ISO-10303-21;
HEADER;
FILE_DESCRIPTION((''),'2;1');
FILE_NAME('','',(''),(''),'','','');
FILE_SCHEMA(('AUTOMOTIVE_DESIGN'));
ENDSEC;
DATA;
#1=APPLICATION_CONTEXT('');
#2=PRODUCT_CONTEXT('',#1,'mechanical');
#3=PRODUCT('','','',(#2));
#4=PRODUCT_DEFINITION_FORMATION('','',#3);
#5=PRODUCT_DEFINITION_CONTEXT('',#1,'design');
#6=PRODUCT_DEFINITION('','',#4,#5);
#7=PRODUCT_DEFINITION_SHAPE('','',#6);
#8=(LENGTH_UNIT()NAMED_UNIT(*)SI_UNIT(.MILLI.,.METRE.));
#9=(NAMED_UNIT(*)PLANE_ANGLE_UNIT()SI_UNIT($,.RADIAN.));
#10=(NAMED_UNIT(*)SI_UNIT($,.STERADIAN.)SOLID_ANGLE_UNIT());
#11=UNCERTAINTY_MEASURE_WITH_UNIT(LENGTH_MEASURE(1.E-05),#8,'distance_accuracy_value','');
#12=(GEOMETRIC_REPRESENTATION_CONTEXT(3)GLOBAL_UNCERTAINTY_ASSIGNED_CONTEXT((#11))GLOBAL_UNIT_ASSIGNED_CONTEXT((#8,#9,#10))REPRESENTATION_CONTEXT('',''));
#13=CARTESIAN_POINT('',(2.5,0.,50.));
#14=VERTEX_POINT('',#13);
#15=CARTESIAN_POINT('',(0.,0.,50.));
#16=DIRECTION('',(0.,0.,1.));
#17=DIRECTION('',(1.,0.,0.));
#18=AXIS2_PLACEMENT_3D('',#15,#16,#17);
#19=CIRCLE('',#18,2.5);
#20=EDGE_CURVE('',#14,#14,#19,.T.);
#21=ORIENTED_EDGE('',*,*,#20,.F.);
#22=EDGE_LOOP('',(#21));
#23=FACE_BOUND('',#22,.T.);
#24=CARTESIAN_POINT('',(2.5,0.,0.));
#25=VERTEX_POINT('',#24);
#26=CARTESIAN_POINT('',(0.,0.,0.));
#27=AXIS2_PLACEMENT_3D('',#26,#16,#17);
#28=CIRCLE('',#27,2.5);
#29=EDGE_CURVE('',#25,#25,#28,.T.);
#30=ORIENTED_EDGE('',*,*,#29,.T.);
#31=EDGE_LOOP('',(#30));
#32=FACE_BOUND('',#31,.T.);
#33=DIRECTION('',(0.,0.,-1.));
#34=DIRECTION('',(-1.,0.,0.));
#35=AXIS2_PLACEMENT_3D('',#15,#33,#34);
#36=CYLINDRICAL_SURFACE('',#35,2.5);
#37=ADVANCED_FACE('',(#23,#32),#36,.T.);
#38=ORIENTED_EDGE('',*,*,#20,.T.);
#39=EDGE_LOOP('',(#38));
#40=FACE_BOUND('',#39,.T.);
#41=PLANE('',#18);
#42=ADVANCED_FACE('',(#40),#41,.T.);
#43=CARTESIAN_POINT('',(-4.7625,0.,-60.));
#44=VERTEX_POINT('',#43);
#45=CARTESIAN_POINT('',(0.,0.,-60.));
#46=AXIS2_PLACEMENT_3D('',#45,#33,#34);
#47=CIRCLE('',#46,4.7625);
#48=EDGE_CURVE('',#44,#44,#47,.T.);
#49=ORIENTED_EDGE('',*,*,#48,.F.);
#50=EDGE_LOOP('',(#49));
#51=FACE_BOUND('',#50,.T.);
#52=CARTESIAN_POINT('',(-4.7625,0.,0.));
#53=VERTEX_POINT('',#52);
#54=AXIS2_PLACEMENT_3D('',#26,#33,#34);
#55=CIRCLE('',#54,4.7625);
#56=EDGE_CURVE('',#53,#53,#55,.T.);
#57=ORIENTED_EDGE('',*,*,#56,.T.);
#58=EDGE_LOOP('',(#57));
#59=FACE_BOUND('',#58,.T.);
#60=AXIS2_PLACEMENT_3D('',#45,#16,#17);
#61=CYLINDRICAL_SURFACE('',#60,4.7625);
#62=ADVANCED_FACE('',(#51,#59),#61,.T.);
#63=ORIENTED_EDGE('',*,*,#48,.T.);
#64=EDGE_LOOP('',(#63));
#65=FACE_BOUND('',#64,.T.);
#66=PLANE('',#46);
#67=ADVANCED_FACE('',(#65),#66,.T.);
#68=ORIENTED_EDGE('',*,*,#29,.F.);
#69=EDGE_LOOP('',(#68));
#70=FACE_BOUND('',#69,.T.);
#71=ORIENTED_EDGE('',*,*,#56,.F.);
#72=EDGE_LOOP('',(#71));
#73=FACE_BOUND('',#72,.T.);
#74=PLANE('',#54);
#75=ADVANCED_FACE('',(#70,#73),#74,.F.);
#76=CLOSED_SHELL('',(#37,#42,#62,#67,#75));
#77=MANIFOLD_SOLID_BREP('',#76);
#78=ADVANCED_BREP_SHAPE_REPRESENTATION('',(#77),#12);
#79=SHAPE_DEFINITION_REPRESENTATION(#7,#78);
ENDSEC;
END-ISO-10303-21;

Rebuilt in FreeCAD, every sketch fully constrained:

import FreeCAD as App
import Part
import Sketcher
from FreeCAD import Vector
Q = App.Units.Quantity

doc = App.newDocument("Part")
params = doc.addObject("Spreadsheet::Sheet", "Params")
for row, (alias, value) in enumerate([
    ("sketch1_diameter", "5 mm"),
    ("pad1_length", "50 mm"),
    ("pad2_length", "60 mm"),
], start=1):
    params.set(f"A{row}", alias)
    params.set(f"B{row}", "=" + value)
    params.setAlias(f"B{row}", alias)

body = doc.addObject("PartDesign::Body", "Body")

sketch1 = doc.addObject("Sketcher::SketchObject", "Sketch")
body.addObject(sketch1)
sketch1.AttachmentSupport = (doc.XY_Plane, [""])
sketch1.MapMode = "FlatFace"
sketch1.addGeometry(Part.Circle(Vector(0, 0, 0), Vector(0, 0, 1), 2.5), False)
sketch1.addConstraint([
    Sketcher.Constraint("Coincident", 0, 3, -1, 1),
    Sketcher.Constraint("Diameter", 0, Q("5 mm")),
])
sketch1.setExpression("Constraints[1]", "Params.sketch1_diameter")
pad1 = doc.addObject("PartDesign::Pad", "Pad")
body.addObject(pad1)
pad1.Profile = sketch1
pad1.setExpression("Length", "Params.pad1_length")

sketch2 = doc.addObject("Sketcher::SketchObject", "Sketch001")
body.addObject(sketch2)
sketch2.AttachmentSupport = (doc.XY_Plane, [""])
sketch2.MapMode = "FlatFace"
sketch2.addGeometry(Part.Circle(Vector(0, 0, 0), Vector(0, 0, 1), 4.8), False)
sketch2.addConstraint([
    Sketcher.Constraint("Coincident", 0, 3, -1, 1),
    Sketcher.Constraint("Diameter", 0, Q("9.525 mm")),
])
pad2 = doc.addObject("PartDesign::Pad", "Pad001")
body.addObject(pad2)
pad2.Profile = sketch2
pad2.setExpression("Length", "Params.pad2_length")
pad2.Reversed = True

doc.recompute()
